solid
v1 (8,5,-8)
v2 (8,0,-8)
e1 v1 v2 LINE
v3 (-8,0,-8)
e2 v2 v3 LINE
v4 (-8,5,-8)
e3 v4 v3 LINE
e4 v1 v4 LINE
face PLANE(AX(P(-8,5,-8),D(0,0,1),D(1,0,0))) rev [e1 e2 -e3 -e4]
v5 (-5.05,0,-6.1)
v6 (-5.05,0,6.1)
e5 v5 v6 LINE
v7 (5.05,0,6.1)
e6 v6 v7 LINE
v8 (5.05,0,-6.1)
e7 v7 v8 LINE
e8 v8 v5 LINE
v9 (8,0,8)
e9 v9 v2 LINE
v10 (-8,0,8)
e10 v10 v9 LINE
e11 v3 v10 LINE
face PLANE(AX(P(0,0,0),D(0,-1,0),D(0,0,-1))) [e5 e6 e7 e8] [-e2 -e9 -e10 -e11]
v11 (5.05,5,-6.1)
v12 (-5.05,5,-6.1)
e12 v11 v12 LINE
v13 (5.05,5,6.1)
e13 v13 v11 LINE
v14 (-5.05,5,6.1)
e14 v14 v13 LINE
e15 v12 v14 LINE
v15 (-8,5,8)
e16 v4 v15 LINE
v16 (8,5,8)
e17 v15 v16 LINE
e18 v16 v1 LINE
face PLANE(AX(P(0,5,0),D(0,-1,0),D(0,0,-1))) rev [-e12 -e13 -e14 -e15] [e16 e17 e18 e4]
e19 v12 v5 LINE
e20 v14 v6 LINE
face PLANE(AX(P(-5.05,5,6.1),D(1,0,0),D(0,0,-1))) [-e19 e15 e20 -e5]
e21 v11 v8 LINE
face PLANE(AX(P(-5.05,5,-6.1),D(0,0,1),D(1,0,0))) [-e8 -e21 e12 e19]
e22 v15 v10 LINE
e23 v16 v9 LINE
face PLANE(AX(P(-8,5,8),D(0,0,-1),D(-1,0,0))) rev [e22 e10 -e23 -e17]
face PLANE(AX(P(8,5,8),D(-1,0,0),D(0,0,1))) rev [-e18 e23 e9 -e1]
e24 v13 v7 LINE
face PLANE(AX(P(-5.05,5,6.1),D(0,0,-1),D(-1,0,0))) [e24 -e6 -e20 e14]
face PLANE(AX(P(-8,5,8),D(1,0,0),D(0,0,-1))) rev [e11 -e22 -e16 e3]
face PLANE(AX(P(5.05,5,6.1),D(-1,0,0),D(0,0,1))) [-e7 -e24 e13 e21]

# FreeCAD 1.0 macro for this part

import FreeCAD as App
import Part
import Sketcher
from FreeCAD import Vector

doc = App.newDocument("Part")
body = doc.addObject("PartDesign::Body", "Body")

# Sketch on XZ plane
sketch1 = body.newObject("Sketcher::SketchObject", "Sketch")
sketch1.AttachmentSupport = (doc.getObject("XZ_Plane"), [""])
sketch1.MapMode = "FlatFace"
sketch1.addGeometry(Part.LineSegment(Vector(-8, -8, 0), Vector(-8, 8, 0)), False)
sketch1.addGeometry(Part.LineSegment(Vector(-8, 8, 0), Vector(8, 8, 0)), False)
sketch1.addGeometry(Part.LineSegment(Vector(8, 8, 0), Vector(8, -8, 0)), False)
sketch1.addGeometry(Part.LineSegment(Vector(8, -8, 0), Vector(-8, -8, 0)), False)
sketch1.addGeometry(Part.LineSegment(Vector(5, 6, 0), Vector(-5, 6, 0)), False)
sketch1.addGeometry(Part.LineSegment(Vector(-5, 6, 0), Vector(-5, -6, 0)), False)
sketch1.addGeometry(Part.LineSegment(Vector(-5, -6, 0), Vector(5, -6, 0)), False)
sketch1.addGeometry(Part.LineSegment(Vector(5, -6, 0), Vector(5, 6, 0)), False)
sketch1.addConstraint(Sketcher.Constraint("Coincident", 0, 2, 1, 1))
sketch1.addConstraint(Sketcher.Constraint("Coincident", 1, 2, 2, 1))
sketch1.addConstraint(Sketcher.Constraint("Coincident", 2, 2, 3, 1))
sketch1.addConstraint(Sketcher.Constraint("Coincident", 3, 2, 0, 1))
sketch1.addConstraint(Sketcher.Constraint("Coincident", 4, 2, 5, 1))
sketch1.addConstraint(Sketcher.Constraint("Coincident", 5, 2, 6, 1))
sketch1.addConstraint(Sketcher.Constraint("Coincident", 6, 2, 7, 1))
sketch1.addConstraint(Sketcher.Constraint("Coincident", 7, 2, 4, 1))
sketch1.addConstraint(Sketcher.Constraint("Vertical", 0))
sketch1.addConstraint(Sketcher.Constraint("Horizontal", 1))
sketch1.addConstraint(Sketcher.Constraint("Vertical", 2))
sketch1.addConstraint(Sketcher.Constraint("Horizontal", 3))
sketch1.addConstraint(Sketcher.Constraint("Horizontal", 4))
sketch1.addConstraint(Sketcher.Constraint("Vertical", 5))
sketch1.addConstraint(Sketcher.Constraint("Horizontal", 6))
sketch1.addConstraint(Sketcher.Constraint("Vertical", 7))
sketch1.addConstraint(Sketcher.Constraint("Symmetric", 0, 2, 2, 2, -1, 1))
sketch1.addConstraint(Sketcher.Constraint("Symmetric", 4, 2, 6, 2, -1, 1))
sketch1.addConstraint(Sketcher.Constraint("Equal", 3, 0))
sketch1.addConstraint(Sketcher.Constraint("DistanceX", 1, 1, 1, 2, 16.0))
sketch1.addConstraint(Sketcher.Constraint("DistanceX", 4, 2, 4, 1, 10.1))
sketch1.addConstraint(Sketcher.Constraint("DistanceY", 5, 2, 5, 1, 12.2))
pad1 = body.newObject("PartDesign::Pad", "Pad")
pad1.Profile = sketch1
pad1.Length = 5
pad1.Reversed = True

doc.recompute()
